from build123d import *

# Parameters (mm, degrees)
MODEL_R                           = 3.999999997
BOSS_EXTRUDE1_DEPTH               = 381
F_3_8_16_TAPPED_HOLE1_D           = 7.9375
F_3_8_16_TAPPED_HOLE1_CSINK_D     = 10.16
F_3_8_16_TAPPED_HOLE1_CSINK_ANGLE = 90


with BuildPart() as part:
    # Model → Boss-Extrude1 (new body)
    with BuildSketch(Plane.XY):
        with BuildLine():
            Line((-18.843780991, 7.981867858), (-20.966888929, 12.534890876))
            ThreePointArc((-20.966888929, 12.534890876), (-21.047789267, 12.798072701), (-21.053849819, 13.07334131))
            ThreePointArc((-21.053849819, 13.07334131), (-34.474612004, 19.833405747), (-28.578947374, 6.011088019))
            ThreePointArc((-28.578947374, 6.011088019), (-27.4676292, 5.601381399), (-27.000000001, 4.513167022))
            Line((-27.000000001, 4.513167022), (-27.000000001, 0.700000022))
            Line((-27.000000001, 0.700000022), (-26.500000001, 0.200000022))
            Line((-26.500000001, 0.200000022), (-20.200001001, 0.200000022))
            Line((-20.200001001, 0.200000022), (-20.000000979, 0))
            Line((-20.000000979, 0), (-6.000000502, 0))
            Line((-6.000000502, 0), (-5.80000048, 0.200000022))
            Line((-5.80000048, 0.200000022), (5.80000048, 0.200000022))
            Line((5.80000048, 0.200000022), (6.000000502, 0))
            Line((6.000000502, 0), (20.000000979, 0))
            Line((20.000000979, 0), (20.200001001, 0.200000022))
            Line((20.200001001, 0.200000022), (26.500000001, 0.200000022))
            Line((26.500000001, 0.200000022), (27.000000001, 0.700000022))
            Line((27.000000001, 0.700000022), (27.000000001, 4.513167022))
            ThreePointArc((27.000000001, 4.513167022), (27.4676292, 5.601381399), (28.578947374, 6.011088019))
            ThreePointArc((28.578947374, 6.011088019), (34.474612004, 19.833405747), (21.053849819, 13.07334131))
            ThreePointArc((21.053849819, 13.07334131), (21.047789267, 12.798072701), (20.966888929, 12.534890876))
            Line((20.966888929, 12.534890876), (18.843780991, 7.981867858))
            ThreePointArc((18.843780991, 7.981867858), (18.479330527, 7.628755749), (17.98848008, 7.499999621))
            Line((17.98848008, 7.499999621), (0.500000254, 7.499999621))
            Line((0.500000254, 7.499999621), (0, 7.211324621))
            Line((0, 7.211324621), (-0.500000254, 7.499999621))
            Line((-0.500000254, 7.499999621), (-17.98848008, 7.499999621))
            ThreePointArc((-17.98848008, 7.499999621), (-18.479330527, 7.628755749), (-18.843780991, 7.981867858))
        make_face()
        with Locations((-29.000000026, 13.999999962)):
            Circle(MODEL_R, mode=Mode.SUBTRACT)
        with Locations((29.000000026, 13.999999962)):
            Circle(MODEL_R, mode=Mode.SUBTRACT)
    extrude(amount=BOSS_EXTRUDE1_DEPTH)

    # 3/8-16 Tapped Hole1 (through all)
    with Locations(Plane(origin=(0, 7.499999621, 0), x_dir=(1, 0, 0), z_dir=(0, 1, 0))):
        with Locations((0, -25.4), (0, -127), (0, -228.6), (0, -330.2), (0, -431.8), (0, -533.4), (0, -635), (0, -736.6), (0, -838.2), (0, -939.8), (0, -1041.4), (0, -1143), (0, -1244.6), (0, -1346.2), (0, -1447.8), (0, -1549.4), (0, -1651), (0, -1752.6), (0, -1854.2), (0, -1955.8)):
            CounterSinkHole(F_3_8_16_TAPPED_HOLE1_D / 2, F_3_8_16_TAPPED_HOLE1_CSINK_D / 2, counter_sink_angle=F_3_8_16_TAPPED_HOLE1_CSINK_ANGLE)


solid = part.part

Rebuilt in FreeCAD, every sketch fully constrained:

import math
import FreeCAD as App
import Part
import Sketcher

V = App.Vector

doc = App.newDocument("Part")
params = doc.addObject("Spreadsheet::Sheet", "Params")
for row, (alias, value) in enumerate([
    ("sketch1_diameter", "8 mm"),
    ("sketch1_diameter2", "8 mm"),
    ("sketch1_radius", "1 mm"),
    ("sketch1_radius2", "8 mm"),
    ("sketch1_radius3", "8 mm"),
    ("pad1_length", "381 mm"),
    ("hole_diameter", "7.9375 mm"),
    ("hole_csink_diameter", "10.16 mm"),
], start=1):
    params.set(f"A{row}", alias)
    params.set(f"B{row}", "=" + value)
    params.setAlias(f"B{row}", alias)

body = doc.addObject("PartDesign::Body", "Body")

sketch1 = body.newObject("Sketcher::SketchObject", "Sketch")
sketch1.AttachmentSupport = (doc.getObject("XY_Plane"), [""])
sketch1.MapMode = "FlatFace"
sketch1.addGeometry([
    Part.LineSegment(V(-18.843781, 7.981868, 0), V(-20.966889, 12.534891, 0)),
    Part.ArcOfCircle(Part.Circle(V(-20.060581, 12.957509, 0), V(0, 0, 1), 1), math.radians(173.348365), math.radians(204.999984)),
    Part.ArcOfCircle(Part.Circle(V(-29, 14, 0), V(0, 0, 1), 8), math.radians(-6.651635), math.radians(273.016961)),
    Part.ArcOfCircle(Part.Circle(V(-28.5, 4.513167, 0), V(0, 0, 1), 1.5), math.radians(0), math.radians(93.016961)),
    Part.LineSegment(V(-27, 4.513167, 0), V(-27, 0.7, 0)),
    Part.LineSegment(V(-27, 0.7, 0), V(-26.5, 0.2, 0)),
    Part.LineSegment(V(-26.5, 0.2, 0), V(-20.200001, 0.2, 0)),
    Part.LineSegment(V(-20.200001, 0.2, 0), V(-20.000001, 0, 0)),
    Part.LineSegment(V(-20.000001, 0, 0), V(-6.000001, 0, 0)),
    Part.LineSegment(V(-6.000001, 0, 0), V(-5.8, 0.2, 0)),
    Part.LineSegment(V(-5.8, 0.2, 0), V(5.8, 0.2, 0)),
    Part.LineSegment(V(5.8, 0.2, 0), V(6.000001, 0, 0)),
    Part.LineSegment(V(6.000001, 0, 0), V(20.000001, 0, 0)),
    Part.LineSegment(V(20.000001, 0, 0), V(20.200001, 0.2, 0)),
    Part.LineSegment(V(20.200001, 0.2, 0), V(26.5, 0.2, 0)),
    Part.LineSegment(V(26.5, 0.2, 0), V(27, 0.7, 0)),
    Part.LineSegment(V(27, 0.7, 0), V(27, 4.513167, 0)),
    Part.ArcOfCircle(Part.Circle(V(28.5, 4.513167, 0), V(0, 0, 1), 1.5), math.radians(86.983039), math.radians(180)),
    Part.ArcOfCircle(Part.Circle(V(29, 14, 0), V(0, 0, 1), 8), math.radians(-93.016961), math.radians(186.651635)),
    Part.ArcOfCircle(Part.Circle(V(20.060581, 12.957509, 0), V(0, 0, 1), 1), math.radians(-24.999984), math.radians(6.651635)),
    Part.LineSegment(V(20.966889, 12.534891, 0), V(18.843781, 7.981868, 0)),
    Part.ArcOfCircle(Part.Circle(V(17.98848, 8.5, 0), V(0, 0, 1), 1), math.radians(-90), math.radians(-31.207023)),
    Part.LineSegment(V(17.98848, 7.5, 0), V(0.5, 7.5, 0)),
    Part.LineSegment(V(0.5, 7.5, 0), V(0, 7.211325, 0)),
    Part.LineSegment(V(0, 7.211325, 0), V(-0.5, 7.5, 0)),
    Part.LineSegment(V(-0.5, 7.5, 0), V(-17.98848, 7.5, 0)),
    Part.ArcOfCircle(Part.Circle(V(-17.98848, 8.5, 0), V(0, 0, 1), 1), math.radians(-148.792977), math.radians(-90)),
    Part.Circle(V(-29, 14, 0), V(0, 0, 1), 4),
    Part.Circle(V(29, 14, 0), V(0, 0, 1), 4),
], False)
sketch1.addConstraint([
    Sketcher.Constraint("Coincident", 0, 2, 1, 2),
    Sketcher.Constraint("Coincident", 1, 1, 2, 1),
    Sketcher.Constraint("Coincident", 2, 2, 3, 2),
    Sketcher.Constraint("Coincident", 3, 1, 4, 1),
    Sketcher.Constraint("Coincident", 4, 2, 5, 1),
    Sketcher.Constraint("Coincident", 5, 2, 6, 1),
    Sketcher.Constraint("Coincident", 6, 2, 7, 1),
    Sketcher.Constraint("Coincident", 7, 2, 8, 1),
    Sketcher.Constraint("Coincident", 8, 2, 9, 1),
    Sketcher.Constraint("Coincident", 9, 2, 10, 1),
    Sketcher.Constraint("Coincident", 10, 2, 11, 1),
    Sketcher.Constraint("Coincident", 11, 2, 12, 1),
    Sketcher.Constraint("Coincident", 12, 2, 13, 1),
    Sketcher.Constraint("Coincident", 13, 2, 14, 1),
    Sketcher.Constraint("Coincident", 14, 2, 15, 1),
    Sketcher.Constraint("Coincident", 15, 2, 16, 1),
    Sketcher.Constraint("Coincident", 16, 2, 17, 2),
    Sketcher.Constraint("Coincident", 17, 1, 18, 1),
    Sketcher.Constraint("Coincident", 18, 2, 19, 2),
    Sketcher.Constraint("Coincident", 19, 1, 20, 1),
    Sketcher.Constraint("Coincident", 20, 2, 21, 2),
    Sketcher.Constraint("Coincident", 21, 1, 22, 1),
    Sketcher.Constraint("Coincident", 22, 2, 23, 1),
    Sketcher.Constraint("Coincident", 23, 2, 24, 1),
    Sketcher.Constraint("Coincident", 24, 2, 25, 1),
    Sketcher.Constraint("Coincident", 25, 2, 26, 2),
    Sketcher.Constraint("Coincident", 26, 1, 0, 1),
    Sketcher.Constraint("Vertical", 4),
    Sketcher.Constraint("Horizontal", 6),
    Sketcher.Constraint("Horizontal", 8),
    Sketcher.Constraint("Horizontal", 10),
    Sketcher.Constraint("Horizontal", 12),
    Sketcher.Constraint("Horizontal", 14),
    Sketcher.Constraint("Vertical", 16),
    Sketcher.Constraint("Horizontal", 22),
    Sketcher.Constraint("Horizontal", 25),
    Sketcher.Constraint("Coincident", 27, 3, 2, 3),
    Sketcher.Constraint("Coincident", 28, 3, 18, 3),
    Sketcher.Constraint("PointOnObject", 7, 2, -1),
    Sketcher.Constraint("PointOnObject", 11, 2, -1),
    Sketcher.Constraint("PointOnObject", 23, 2, -2),
    Sketcher.Constraint("Diameter", 27, 8.0),
    Sketcher.Constraint("Diameter", 28, 8.0),
    Sketcher.Constraint("Radius", 1, 1.0),
    Sketcher.Constraint("Radius", 2, 8.0),
    Sketcher.Constraint("Radius", 18, 8.0),
    Sketcher.Constraint("Radius", 19, 1.0),
    Sketcher.Constraint("Radius", 21, 1.0),
    Sketcher.Constraint("Radius", 26, 1.0),
    Sketcher.Constraint("Radius", 3, 1.5),
    Sketcher.Constraint("Radius", 17, 1.5),
    Sketcher.Constraint("DistanceX", 8, 1, 8, 2, 14.0),
    Sketcher.Constraint("DistanceX", 12, 1, 12, 2, 14.0),
    Sketcher.Constraint("DistanceX", 6, 1, 6, 2, 6.299999),
    Sketcher.Constraint("DistanceX", 10, 1, 10, 2, 11.600001),
    Sketcher.Constraint("DistanceX", 14, 1, 14, 2, 6.299999),
    Sketcher.Constraint("DistanceX", 2, 3, -1, 1, 29.0),
    Sketcher.Constraint("DistanceY", -1, 1, 2, 3, 14.0),
    Sketcher.Constraint("DistanceX", -1, 1, 18, 3, 29.0),
    Sketcher.Constraint("DistanceY", -1, 1, 18, 3, 14.0),
    Sketcher.Constraint("DistanceX", 3, 1, -1, 1, 27.0),
    Sketcher.Constraint("DistanceX", 7, 2, -1, 1, 20.000001),
    Sketcher.Constraint("DistanceX", -1, 1, 11, 2, 6.000001),
    Sketcher.Constraint("DistanceX", -1, 1, 15, 2, 27.0),
    Sketcher.Constraint("DistanceX", 3, 3, 5, 2, 2.0),
    Sketcher.Constraint("DistanceX", 14, 2, 17, 3, 2.0),
    Sketcher.Constraint("DistanceX", 24, 2, 22, 2, 1.000001),
    Sketcher.Constraint("DistanceY", -1, 1, 21, 3, 8.5),
    Sketcher.Constraint("DistanceY", -1, 1, 26, 3, 8.5),
    Sketcher.Constraint("DistanceY", -1, 1, 4, 2, 0.7),
    Sketcher.Constraint("DistanceY", -1, 1, 5, 2, 0.2),
    Sketcher.Constraint("DistanceX", 9, 2, -1, 1, 5.8),
    Sketcher.Constraint("DistanceY", -1, 1, 9, 2, 0.2),
    Sketcher.Constraint("DistanceY", -1, 1, 13, 2, 0.2),
    Sketcher.Constraint("DistanceY", -1, 1, 15, 2, 0.7),
    Sketcher.Constraint("DistanceX", -1, 1, 22, 2, 0.5),
    Sketcher.Constraint("DistanceX", 22, 2, 22, 1, 17.48848),
    Sketcher.Constraint("DistanceX", 25, 2, 25, 1, 17.48848),
    Sketcher.Constraint("DistanceX", 21, 3, 19, 3, 2.072101),
    Sketcher.Constraint("DistanceX", 1, 3, 26, 3, 2.072101),
    Sketcher.Constraint("DistanceX", 21, 3, 20, 2, 0.855301),
    Sketcher.Constraint("DistanceX", 21, 1, 20, 2, 0.855301),
    Sketcher.Constraint("DistanceX", 1, 3, 25, 2, 2.072101),
    Sketcher.Constraint("DistanceX", 26, 1, 25, 2, 0.855301),
    Sketcher.Constraint("Distance", 23, 0.57735),
    Sketcher.Constraint("DistanceY", 4, 2, 4, 1, 3.813167),
    Sketcher.Constraint("DistanceY", 16, 1, 16, 2, 3.813167),
    Sketcher.Constraint("DistanceX", 0, 2, -1, 1, 20.966889),
    Sketcher.Constraint("DistanceX", 1, 1, -1, 1, 21.05385),
    Sketcher.Constraint("DistanceY", -1, 1, 2, 2, 6.011088),
    Sketcher.Constraint("DistanceY", -1, 1, 17, 1, 6.011088),
    Sketcher.Constraint("DistanceX", -1, 1, 18, 2, 21.05385),
    Sketcher.Constraint("DistanceX", -1, 1, 19, 1, 20.966889),
])
sketch1.setExpression("Constraints[41]", "Params.sketch1_diameter")
sketch1.setExpression("Constraints[42]", "Params.sketch1_diameter2")
sketch1.setExpression("Constraints[43]", "Params.sketch1_radius")
sketch1.setExpression("Constraints[44]", "Params.sketch1_radius2")
sketch1.setExpression("Constraints[45]", "Params.sketch1_radius3")
pad1 = body.newObject("PartDesign::Pad", "Pad")
pad1.Profile = sketch1
pad1.setExpression("Length", "Params.pad1_length")

sketch2 = body.newObject("Sketcher::SketchObject", "Sketch001")
sketch2.AttachmentSupport = (doc.getObject("XZ_Plane"), [""])
sketch2.MapMode = "FlatFace"
sketch2.AttachmentOffset = App.Placement(V(0, 0, -7.5), App.Rotation())
sketch2.addGeometry([
    Part.Circle(V(0, 25.4, 0), V(0, 0, 1), 4),
    Part.Circle(V(0, 127, 0), V(0, 0, 1), 4),
    Part.Circle(V(0, 228.6, 0), V(0, 0, 1), 4),
    Part.Circle(V(0, 330.2, 0), V(0, 0, 1), 4),
    Part.Circle(V(0, 431.8, 0), V(0, 0, 1), 4),
    Part.Circle(V(0, 533.4, 0), V(0, 0, 1), 4),
    Part.Circle(V(0, 635, 0), V(0, 0, 1), 4),
    Part.Circle(V(0, 736.6, 0), V(0, 0, 1), 4),
    Part.Circle(V(0, 838.2, 0), V(0, 0, 1), 4),
    Part.Circle(V(0, 939.8, 0), V(0, 0, 1), 4),
    Part.Circle(V(0, 1041.4, 0), V(0, 0, 1), 4),
    Part.Circle(V(0, 1143, 0), V(0, 0, 1), 4),
    Part.Circle(V(0, 1244.6, 0), V(0, 0, 1), 4),
    Part.Circle(V(0, 1346.2, 0), V(0, 0, 1), 4),
    Part.Circle(V(0, 1447.8, 0), V(0, 0, 1), 4),
    Part.Circle(V(0, 1549.4, 0), V(0, 0, 1), 4),
    Part.Circle(V(0, 1651, 0), V(0, 0, 1), 4),
    Part.Circle(V(0, 1752.6, 0), V(0, 0, 1), 4),
    Part.Circle(V(0, 1854.2, 0), V(0, 0, 1), 4),
    Part.Circle(V(0, 1955.8, 0), V(0, 0, 1), 4),
], False)
sketch2.addConstraint([
    Sketcher.Constraint("Equal", 0, 1),
    Sketcher.Constraint("Equal", 1, 2),
    Sketcher.Constraint("Equal", 2, 3),
    Sketcher.Constraint("Equal", 3, 4),
    Sketcher.Constraint("Equal", 4, 5),
    Sketcher.Constraint("Equal", 5, 6),
    Sketcher.Constraint("Equal", 6, 7),
    Sketcher.Constraint("Equal", 7, 8),
    Sketcher.Constraint("Equal", 8, 9),
    Sketcher.Constraint("Equal", 9, 10),
    Sketcher.Constraint("Equal", 10, 11),
    Sketcher.Constraint("Equal", 11, 12),
    Sketcher.Constraint("Equal", 12, 13),
    Sketcher.Constraint("Equal", 13, 14),
    Sketcher.Constraint("Equal", 14, 15),
    Sketcher.Constraint("Equal", 15, 16),
    Sketcher.Constraint("Equal", 16, 17),
    Sketcher.Constraint("Equal", 17, 18),
    Sketcher.Constraint("Equal", 18, 19),
    Sketcher.Constraint("PointOnObject", 0, 3, -2),
    Sketcher.Constraint("PointOnObject", 1, 3, -2),
    Sketcher.Constraint("PointOnObject", 2, 3, -2),
    Sketcher.Constraint("PointOnObject", 3, 3, -2),
    Sketcher.Constraint("PointOnObject", 4, 3, -2),
    Sketcher.Constraint("PointOnObject", 5, 3, -2),
    Sketcher.Constraint("PointOnObject", 6, 3, -2),
    Sketcher.Constraint("PointOnObject", 7, 3, -2),
    Sketcher.Constraint("PointOnObject", 8, 3, -2),
    Sketcher.Constraint("PointOnObject", 9, 3, -2),
    Sketcher.Constraint("PointOnObject", 10, 3, -2),
    Sketcher.Constraint("PointOnObject", 11, 3, -2),
    Sketcher.Constraint("PointOnObject", 12, 3, -2),
    Sketcher.Constraint("PointOnObject", 13, 3, -2),
    Sketcher.Constraint("PointOnObject", 14, 3, -2),
    Sketcher.Constraint("PointOnObject", 15, 3, -2),
    Sketcher.Constraint("PointOnObject", 16, 3, -2),
    Sketcher.Constraint("PointOnObject", 17, 3, -2),
    Sketcher.Constraint("PointOnObject", 18, 3, -2),
    Sketcher.Constraint("PointOnObject", 19, 3, -2),
    Sketcher.Constraint("DistanceY", -1, 1, 1, 3, 127.0),
    Sketcher.Constraint("DistanceY", -1, 1, 6, 3, 635.0),
    Sketcher.Constraint("DistanceY", -1, 1, 11, 3, 1143.0),
    Sketcher.Constraint("DistanceY", -1, 1, 16, 3, 1651.0),
    Sketcher.Constraint("DistanceY", 0, 3, 5, 3, 508.0),
    Sketcher.Constraint("DistanceY", 2, 3, 7, 3, 508.0),
    Sketcher.Constraint("DistanceY", 3, 3, 8, 3, 508.0),
    Sketcher.Constraint("DistanceY", 4, 3, 9, 3, 508.0),
    Sketcher.Constraint("DistanceY", 5, 3, 10, 3, 508.0),
    Sketcher.Constraint("DistanceY", 7, 3, 12, 3, 508.0),
    Sketcher.Constraint("DistanceY", 8, 3, 13, 3, 508.0),
    Sketcher.Constraint("DistanceY", 9, 3, 14, 3, 508.0),
    Sketcher.Constraint("DistanceY", 10, 3, 15, 3, 508.0),
    Sketcher.Constraint("DistanceY", 12, 3, 17, 3, 508.0),
    Sketcher.Constraint("DistanceY", 13, 3, 18, 3, 508.0),
    Sketcher.Constraint("DistanceY", 14, 3, 19, 3, 508.0),
    Sketcher.Constraint("Diameter", 0, 7.9375),
    Sketcher.Constraint("DistanceY", -1, 1, 0, 3, 25.4),
    Sketcher.Constraint("DistanceY", -1, 1, 2, 3, 228.6),
    Sketcher.Constraint("DistanceY", -1, 1, 3, 3, 330.2),
    Sketcher.Constraint("DistanceY", -1, 1, 4, 3, 431.8),
])
doc.recompute()
hole = body.newObject("PartDesign::Hole", "Hole")
hole.Profile = sketch2
hole.ThreadType = "None"
hole.setExpression("Diameter", "Params.hole_diameter")
hole.DepthType = "ThroughAll"
hole.HoleCutType = "Countersink"
hole.setExpression("HoleCutDiameter", "Params.hole_csink_diameter")
hole.HoleCutCountersinkAngle = 90
hole.Reversed = True

doc.recompute()
